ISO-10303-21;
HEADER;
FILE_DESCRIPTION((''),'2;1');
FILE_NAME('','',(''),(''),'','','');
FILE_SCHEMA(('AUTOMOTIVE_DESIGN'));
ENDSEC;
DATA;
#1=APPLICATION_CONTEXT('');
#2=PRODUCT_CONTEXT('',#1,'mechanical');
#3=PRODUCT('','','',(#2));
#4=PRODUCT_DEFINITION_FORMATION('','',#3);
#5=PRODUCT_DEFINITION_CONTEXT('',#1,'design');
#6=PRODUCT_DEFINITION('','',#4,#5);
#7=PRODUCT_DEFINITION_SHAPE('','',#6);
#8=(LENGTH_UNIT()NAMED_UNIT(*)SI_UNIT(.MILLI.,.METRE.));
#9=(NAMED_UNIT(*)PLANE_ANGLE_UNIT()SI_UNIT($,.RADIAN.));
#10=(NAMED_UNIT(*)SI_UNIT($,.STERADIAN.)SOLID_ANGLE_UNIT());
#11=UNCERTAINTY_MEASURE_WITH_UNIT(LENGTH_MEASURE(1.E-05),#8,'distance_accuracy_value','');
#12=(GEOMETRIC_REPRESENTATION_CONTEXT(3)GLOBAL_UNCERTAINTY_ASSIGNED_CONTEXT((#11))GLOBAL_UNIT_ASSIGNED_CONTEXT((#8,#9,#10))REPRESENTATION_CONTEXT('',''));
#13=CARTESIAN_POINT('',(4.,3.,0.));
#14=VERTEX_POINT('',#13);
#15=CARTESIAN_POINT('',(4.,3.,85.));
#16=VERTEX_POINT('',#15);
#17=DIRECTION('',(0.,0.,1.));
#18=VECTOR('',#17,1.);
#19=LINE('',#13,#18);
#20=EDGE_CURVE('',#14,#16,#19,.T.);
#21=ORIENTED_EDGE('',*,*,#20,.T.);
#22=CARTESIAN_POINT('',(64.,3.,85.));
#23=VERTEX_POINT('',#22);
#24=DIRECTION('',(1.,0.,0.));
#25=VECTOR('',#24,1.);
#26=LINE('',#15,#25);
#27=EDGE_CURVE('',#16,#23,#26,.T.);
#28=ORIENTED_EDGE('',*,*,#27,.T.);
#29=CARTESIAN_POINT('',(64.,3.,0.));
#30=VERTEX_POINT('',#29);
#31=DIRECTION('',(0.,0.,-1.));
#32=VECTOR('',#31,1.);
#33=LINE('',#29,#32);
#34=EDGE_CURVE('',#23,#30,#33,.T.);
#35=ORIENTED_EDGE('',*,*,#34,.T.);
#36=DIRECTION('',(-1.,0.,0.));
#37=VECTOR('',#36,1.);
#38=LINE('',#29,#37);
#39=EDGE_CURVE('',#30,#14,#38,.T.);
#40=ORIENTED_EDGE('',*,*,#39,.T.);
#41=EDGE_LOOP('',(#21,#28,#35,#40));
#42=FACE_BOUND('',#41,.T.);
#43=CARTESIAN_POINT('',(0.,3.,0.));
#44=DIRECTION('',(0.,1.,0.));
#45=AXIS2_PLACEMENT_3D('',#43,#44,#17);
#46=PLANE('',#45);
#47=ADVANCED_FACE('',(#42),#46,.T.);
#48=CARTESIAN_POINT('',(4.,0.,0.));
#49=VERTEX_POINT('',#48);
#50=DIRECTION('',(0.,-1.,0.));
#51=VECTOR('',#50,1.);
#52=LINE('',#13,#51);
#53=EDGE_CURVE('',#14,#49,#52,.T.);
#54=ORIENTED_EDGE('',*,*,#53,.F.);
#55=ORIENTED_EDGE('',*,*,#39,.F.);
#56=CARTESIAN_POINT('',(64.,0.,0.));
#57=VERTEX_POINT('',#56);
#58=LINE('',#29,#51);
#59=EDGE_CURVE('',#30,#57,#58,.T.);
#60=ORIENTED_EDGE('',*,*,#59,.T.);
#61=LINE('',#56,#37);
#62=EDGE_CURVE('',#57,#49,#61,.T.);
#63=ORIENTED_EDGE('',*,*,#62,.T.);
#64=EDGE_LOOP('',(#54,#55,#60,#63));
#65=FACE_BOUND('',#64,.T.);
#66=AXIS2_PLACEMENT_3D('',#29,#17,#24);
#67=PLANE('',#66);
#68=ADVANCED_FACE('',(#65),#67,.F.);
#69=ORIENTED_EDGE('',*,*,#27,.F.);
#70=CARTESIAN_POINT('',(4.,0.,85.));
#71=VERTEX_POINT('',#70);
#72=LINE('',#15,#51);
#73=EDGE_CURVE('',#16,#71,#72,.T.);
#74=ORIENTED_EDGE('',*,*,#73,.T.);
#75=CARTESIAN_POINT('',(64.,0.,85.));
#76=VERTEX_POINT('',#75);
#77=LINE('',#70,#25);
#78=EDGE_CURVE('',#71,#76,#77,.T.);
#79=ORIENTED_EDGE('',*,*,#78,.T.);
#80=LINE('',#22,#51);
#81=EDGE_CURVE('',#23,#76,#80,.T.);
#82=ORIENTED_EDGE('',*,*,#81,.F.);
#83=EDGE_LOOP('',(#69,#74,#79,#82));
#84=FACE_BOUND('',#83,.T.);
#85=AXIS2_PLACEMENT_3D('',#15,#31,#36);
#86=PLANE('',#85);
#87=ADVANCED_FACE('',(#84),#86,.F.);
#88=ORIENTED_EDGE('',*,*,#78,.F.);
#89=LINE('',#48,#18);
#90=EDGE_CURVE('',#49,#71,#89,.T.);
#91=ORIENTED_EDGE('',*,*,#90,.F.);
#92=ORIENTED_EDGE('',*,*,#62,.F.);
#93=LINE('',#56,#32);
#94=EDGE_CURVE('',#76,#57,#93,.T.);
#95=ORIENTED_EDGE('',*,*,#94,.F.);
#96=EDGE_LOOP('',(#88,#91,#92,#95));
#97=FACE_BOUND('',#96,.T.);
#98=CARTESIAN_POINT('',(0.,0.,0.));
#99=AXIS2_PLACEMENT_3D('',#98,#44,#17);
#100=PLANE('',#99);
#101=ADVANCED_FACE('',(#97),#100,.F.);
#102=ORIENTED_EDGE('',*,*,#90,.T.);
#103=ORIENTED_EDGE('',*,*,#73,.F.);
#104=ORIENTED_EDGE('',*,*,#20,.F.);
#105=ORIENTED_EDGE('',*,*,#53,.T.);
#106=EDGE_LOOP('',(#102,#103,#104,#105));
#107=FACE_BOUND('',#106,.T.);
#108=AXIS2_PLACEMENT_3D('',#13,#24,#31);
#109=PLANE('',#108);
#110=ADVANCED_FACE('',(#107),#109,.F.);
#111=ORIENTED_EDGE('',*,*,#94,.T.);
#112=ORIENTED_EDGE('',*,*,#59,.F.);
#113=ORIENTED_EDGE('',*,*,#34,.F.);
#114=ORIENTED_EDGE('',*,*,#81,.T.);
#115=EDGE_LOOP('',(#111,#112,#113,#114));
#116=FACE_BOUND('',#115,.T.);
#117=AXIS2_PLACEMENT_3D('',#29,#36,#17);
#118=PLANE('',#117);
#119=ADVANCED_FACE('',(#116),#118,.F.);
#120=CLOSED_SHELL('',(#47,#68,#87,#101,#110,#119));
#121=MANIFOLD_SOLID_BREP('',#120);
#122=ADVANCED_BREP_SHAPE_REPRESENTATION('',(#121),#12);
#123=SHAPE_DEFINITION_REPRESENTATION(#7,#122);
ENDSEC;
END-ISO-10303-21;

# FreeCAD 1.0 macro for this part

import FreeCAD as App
import Part
import Sketcher
from FreeCAD import Vector


def add_polygon(sketch, points):
    """Adds a closed chain of lines whose ends are joined by coincident constraints."""
    first, n = sketch.GeometryCount, len(points)
    for a, b in zip(points, points[1:] + points[:1]):
        sketch.addGeometry(Part.LineSegment(App.Vector(*a, 0), App.Vector(*b, 0)), False)
    for i in range(n):
        sketch.addConstraint(Sketcher.Constraint("Coincident", first + i, 2, first + (i + 1) % n, 1))

doc = App.newDocument("Part")
params = doc.addObject("Spreadsheet::Sheet", "Params")
for row, (alias, value) in enumerate([
    ("sketch1_width", "60 mm"),
    ("sketch1_height", "85 mm"),
    ("pad1_length", "3 mm"),
], start=1):
    params.set(f"A{row}", alias)
    params.set(f"B{row}", "=" + value)
    params.setAlias(f"B{row}", alias)

body = doc.addObject("PartDesign::Body", "Body")

sketch1 = body.newObject("Sketcher::SketchObject", "Sketch")
sketch1.AttachmentSupport = (doc.getObject("XZ_Plane"), [""])
sketch1.MapMode = "FlatFace"
add_polygon(sketch1, [(4, 0), (4, 85), (64, 85), (64, 0)])
sketch1.addConstraint([
    Sketcher.Constraint("Vertical", 0),
    Sketcher.Constraint("Horizontal", 1),
    Sketcher.Constraint("Vertical", 2),
    Sketcher.Constraint("Horizontal", 3),
    Sketcher.Constraint("PointOnObject", 2, 2, -1),
    Sketcher.Constraint("DistanceX", 1, 1, 1, 2, 60.0),
    Sketcher.Constraint("DistanceY", 0, 1, 0, 2, 85.0),
    Sketcher.Constraint("DistanceX", -1, 1, 0, 2, 4.0),
])
sketch1.setExpression("Constraints[9]", "Params.sketch1_width")
sketch1.setExpression("Constraints[10]", "Params.sketch1_height")
pad1 = body.newObject("PartDesign::Pad", "Pad")
pad1.Profile = sketch1
pad1.setExpression("Length", "Params.pad1_length")
pad1.Reversed = True

doc.recompute()
